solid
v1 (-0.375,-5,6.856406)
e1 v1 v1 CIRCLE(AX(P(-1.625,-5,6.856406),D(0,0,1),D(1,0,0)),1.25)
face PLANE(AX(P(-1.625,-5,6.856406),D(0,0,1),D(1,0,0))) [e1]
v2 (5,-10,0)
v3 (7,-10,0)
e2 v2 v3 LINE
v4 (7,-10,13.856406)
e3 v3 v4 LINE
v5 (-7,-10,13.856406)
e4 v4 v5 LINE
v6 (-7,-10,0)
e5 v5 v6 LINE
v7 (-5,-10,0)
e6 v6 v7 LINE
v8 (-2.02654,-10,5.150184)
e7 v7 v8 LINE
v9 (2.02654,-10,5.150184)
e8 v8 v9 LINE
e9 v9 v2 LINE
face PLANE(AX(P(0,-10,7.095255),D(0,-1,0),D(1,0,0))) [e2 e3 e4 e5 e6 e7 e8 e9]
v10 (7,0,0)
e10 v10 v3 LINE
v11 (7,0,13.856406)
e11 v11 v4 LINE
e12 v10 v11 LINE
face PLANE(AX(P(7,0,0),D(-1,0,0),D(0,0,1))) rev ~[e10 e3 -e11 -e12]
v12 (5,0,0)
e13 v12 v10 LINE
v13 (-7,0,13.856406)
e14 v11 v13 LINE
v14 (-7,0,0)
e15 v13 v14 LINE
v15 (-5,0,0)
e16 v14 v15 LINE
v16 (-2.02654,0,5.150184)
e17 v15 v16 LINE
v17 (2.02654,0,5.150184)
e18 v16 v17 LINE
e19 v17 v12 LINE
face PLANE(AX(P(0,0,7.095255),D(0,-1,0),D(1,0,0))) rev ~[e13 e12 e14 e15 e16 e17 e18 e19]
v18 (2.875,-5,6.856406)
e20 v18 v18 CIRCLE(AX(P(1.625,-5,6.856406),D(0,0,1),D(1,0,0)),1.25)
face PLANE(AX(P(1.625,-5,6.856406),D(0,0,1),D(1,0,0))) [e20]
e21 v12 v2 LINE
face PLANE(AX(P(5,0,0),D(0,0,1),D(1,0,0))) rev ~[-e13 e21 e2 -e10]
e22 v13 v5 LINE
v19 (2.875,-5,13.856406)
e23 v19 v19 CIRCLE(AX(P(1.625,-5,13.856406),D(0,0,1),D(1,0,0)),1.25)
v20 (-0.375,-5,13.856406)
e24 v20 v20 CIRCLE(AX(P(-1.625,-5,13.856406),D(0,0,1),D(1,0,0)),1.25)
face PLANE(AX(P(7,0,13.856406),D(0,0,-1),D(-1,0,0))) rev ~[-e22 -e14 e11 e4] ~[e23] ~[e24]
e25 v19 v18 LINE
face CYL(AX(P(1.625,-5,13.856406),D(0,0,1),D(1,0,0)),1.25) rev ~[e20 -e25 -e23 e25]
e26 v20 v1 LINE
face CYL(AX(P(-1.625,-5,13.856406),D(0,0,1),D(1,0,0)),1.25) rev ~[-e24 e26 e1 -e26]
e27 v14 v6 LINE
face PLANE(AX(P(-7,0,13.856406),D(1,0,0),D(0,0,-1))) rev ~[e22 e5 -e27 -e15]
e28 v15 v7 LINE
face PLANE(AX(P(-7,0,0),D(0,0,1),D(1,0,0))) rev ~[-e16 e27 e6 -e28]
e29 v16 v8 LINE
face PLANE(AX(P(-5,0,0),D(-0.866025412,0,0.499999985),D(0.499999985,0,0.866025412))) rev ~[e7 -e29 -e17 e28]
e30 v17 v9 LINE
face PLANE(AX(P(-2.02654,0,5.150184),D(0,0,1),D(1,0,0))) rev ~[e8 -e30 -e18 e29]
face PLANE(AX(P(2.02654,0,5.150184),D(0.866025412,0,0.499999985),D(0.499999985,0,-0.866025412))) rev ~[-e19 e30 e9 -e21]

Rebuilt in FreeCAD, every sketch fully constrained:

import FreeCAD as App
import Part
import Sketcher
Q = App.Units.Quantity


def add_polygon(sketch, points):
    """Adds a closed chain of lines whose ends are joined by coincident constraints."""
    first, n = sketch.GeometryCount, len(points)
    for a, b in zip(points, points[1:] + points[:1]):
        sketch.addGeometry(Part.LineSegment(App.Vector(*a, 0), App.Vector(*b, 0)), False)
    for i in range(n):
        sketch.addConstraint(Sketcher.Constraint("Coincident", first + i, 2, first + (i + 1) % n, 1))

doc = App.newDocument("Part")
params = doc.addObject("Spreadsheet::Sheet", "Params")
for row, (alias, value) in enumerate([
    ("sketch1_width", "2 mm"),
    ("sketch1_width2", "14 mm"),
    ("pad1_length", "10 mm"),
    ("sketch2_diameter", "2.5 mm"),
    ("pocket1_length", "7 mm"),
], start=1):
    params.set(f"A{row}", alias)
    params.set(f"B{row}", "=" + value)
    params.setAlias(f"B{row}", alias)

body = doc.addObject("PartDesign::Body", "Body")

# Sketch on XZ plane
sketch1 = body.newObject("Sketcher::SketchObject", "Sketch")
sketch1.AttachmentSupport = (doc.getObject("XZ_Plane"), [""])
sketch1.MapMode = "FlatFace"
add_polygon(sketch1, [(-7, 0), (-5, 0), (-2, 5.2), (2, 5.2), (5, 0), (7, 0), (7, 13.9), (-7, 13.9)])  # lines 0-7
sketch1.addConstraint([
    Sketcher.Constraint("Horizontal", 0),
    Sketcher.Constraint("Horizontal", 2),
    Sketcher.Constraint("Horizontal", 4),
    Sketcher.Constraint("Vertical", 5),
    Sketcher.Constraint("Horizontal", 6),
    Sketcher.Constraint("Vertical", 7),
    Sketcher.Constraint("Symmetric", 0, 2, 3, 2, -1, 1),
    Sketcher.Constraint("Symmetric", 4, 2, 7, 2, -2),
    Sketcher.Constraint("Equal", 1, 3),
    Sketcher.Constraint("DistanceX", 0, 1, 0, 2, 2.0),
    Sketcher.Constraint("DistanceX", 6, 2, 6, 1, 14.0),
    Sketcher.Constraint("Angle", 1, Q("60.000001 deg")),
    Sketcher.Constraint("DistanceX", 2, 1, 2, 2, 4.05308),
    Sketcher.Constraint("DistanceY", 5, 1, 5, 2, 13.856406),
])
sketch1.setExpression("Constraints[17]", "Params.sketch1_width")
sketch1.setExpression("Constraints[18]", "Params.sketch1_width2")
pad1 = body.newObject("PartDesign::Pad", "Pad")
pad1.Profile = sketch1
pad1.setExpression("Length", "Params.pad1_length")

# Sketch on XY plane
sketch2 = body.newObject("Sketcher::SketchObject", "Sketch001")
sketch2.AttachmentSupport = (doc.getObject("XY_Plane"), [""])
sketch2.MapMode = "FlatFace"
sketch2.AttachmentOffset = App.Placement(App.Vector(0, 0, 13.856406), App.Rotation())
sketch2.addGeometry([
    Part.Circle(App.Vector(1.6, -5, 0), App.Vector(0, 0, 1), 1.2),
    Part.Circle(App.Vector(-1.6, -5, 0), App.Vector(0, 0, 1), 1.2),
], False)
sketch2.addConstraint([
    Sketcher.Constraint("Equal", 0, 1),
    Sketcher.Constraint("Symmetric", 0, 3, 1, 3, -2),
    Sketcher.Constraint("Diameter", 0, 2.5),
    Sketcher.Constraint("DistanceY", 0, 3, -1, 1, 5.0),
    Sketcher.Constraint("DistanceX", 1, 3, 0, 3, 3.25),
])
sketch2.setExpression("Constraints[2]", "Params.sketch2_diameter")
pocket1 = body.newObject("PartDesign::Pocket", "Pocket")
pocket1.Profile = sketch2
pocket1.setExpression("Length", "Params.pocket1_length")

doc.recompute()
